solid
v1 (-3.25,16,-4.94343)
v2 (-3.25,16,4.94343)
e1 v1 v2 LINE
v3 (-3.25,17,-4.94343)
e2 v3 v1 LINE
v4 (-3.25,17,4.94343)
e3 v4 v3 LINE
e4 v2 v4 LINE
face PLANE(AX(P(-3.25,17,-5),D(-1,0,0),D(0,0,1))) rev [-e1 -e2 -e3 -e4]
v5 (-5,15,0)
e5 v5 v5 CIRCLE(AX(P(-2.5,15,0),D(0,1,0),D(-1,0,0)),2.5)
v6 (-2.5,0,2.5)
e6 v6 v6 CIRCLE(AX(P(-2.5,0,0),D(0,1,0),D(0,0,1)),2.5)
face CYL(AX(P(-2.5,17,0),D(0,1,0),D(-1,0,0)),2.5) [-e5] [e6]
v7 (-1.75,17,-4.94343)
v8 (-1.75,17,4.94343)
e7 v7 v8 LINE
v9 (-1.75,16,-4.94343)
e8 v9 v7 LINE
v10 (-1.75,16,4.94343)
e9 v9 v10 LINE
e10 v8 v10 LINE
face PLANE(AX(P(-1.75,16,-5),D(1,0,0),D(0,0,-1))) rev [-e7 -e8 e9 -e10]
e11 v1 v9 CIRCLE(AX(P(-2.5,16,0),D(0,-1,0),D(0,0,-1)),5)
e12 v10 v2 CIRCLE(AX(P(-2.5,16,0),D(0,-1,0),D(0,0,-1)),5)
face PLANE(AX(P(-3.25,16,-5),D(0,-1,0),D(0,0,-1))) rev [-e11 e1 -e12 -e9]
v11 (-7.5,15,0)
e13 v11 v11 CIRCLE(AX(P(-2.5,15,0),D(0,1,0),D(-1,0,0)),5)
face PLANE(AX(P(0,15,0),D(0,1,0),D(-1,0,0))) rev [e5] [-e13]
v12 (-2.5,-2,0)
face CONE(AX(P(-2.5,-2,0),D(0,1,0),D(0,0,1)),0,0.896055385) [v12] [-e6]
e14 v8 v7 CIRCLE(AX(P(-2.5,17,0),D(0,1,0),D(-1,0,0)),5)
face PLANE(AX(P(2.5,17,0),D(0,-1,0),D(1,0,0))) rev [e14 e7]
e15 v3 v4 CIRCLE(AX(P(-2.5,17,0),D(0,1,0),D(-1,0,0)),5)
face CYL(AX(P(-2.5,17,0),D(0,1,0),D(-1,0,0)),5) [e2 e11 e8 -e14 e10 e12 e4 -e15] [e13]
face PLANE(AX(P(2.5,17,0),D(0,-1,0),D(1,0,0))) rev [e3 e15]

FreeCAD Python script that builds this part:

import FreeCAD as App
import Part
import Sketcher
from FreeCAD import Vector
Q = App.Units.Quantity

doc = App.newDocument("Part")
body = doc.addObject("PartDesign::Body", "Body")

# Sketch on XY plane
sketch1 = body.newObject("Sketcher::SketchObject", "Sketch")
sketch1.AttachmentSupport = (doc.getObject("XY_Plane"), [""])
sketch1.MapMode = "FlatFace"
sketch1.addGeometry(Part.LineSegment(Vector(0, 0, 0), Vector(0, 15, 0)), False)
sketch1.addGeometry(Part.LineSegment(Vector(0, 15, 0), Vector(2.5, 15, 0)), False)
sketch1.addGeometry(Part.LineSegment(Vector(2.5, 15, 0), Vector(2.5, 17, 0)), False)
sketch1.addGeometry(Part.LineSegment(Vector(2.5, 17, 0), Vector(-2.5, 17, 0)), False)
sketch1.addGeometry(Part.LineSegment(Vector(-2.5, 17, 0), Vector(-2.5, 0, 0)), False)
sketch1.addGeometry(Part.LineSegment(Vector(-2.5, 0, 0), Vector(0, 0, 0)), False)
sketch1.addGeometry(Part.LineSegment(Vector(-2.5, 17, 0), Vector(-2.5, 0, 0)), True)  # axis
sketch1.addConstraint(Sketcher.Constraint("Coincident", 0, 2, 1, 1))
sketch1.addConstraint(Sketcher.Constraint("Coincident", 1, 2, 2, 1))
sketch1.addConstraint(Sketcher.Constraint("Coincident", 2, 2, 3, 1))
sketch1.addConstraint(Sketcher.Constraint("Coincident", 3, 2, 4, 1))
sketch1.addConstraint(Sketcher.Constraint("Coincident", 4, 2, 5, 1))
sketch1.addConstraint(Sketcher.Constraint("Coincident", 5, 2, 0, 1))
sketch1.addConstraint(Sketcher.Constraint("Vertical", 0))
sketch1.addConstraint(Sketcher.Constraint("Horizontal", 1))
sketch1.addConstraint(Sketcher.Constraint("Vertical", 2))
sketch1.addConstraint(Sketcher.Constraint("Horizontal", 3))
sketch1.addConstraint(Sketcher.Constraint("Vertical", 4))
sketch1.addConstraint(Sketcher.Constraint("Horizontal", 5))
sketch1.addConstraint(Sketcher.Constraint("Vertical", 6))
sketch1.addConstraint(Sketcher.Constraint("Coincident", 5, 2, -1, 1))
sketch1.addConstraint(Sketcher.Constraint("Coincident", 6, 1, 3, 2))
sketch1.addConstraint(Sketcher.Constraint("PointOnObject", 6, 2, -1))
sketch1.addConstraint(Sketcher.Constraint("Equal", 1, 5))
sketch1.addConstraint(Sketcher.Constraint("DistanceX", 3, 2, 3, 1, Q("5 mm")))
sketch1.addConstraint(Sketcher.Constraint("DistanceY", 0, 1, 0, 2, Q("15 mm")))
sketch1.addConstraint(Sketcher.Constraint("DistanceY", 2, 1, 2, 2, Q("2 mm")))
revolution = body.newObject("PartDesign::Revolution", "Revolution")
revolution.Profile = sketch1
revolution.ReferenceAxis = (sketch1, ["Axis0"])
revolution.Angle = 360

# Sketch on XY plane
sketch2 = body.newObject("Sketcher::SketchObject", "Sketch001")
sketch2.AttachmentSupport = (doc.getObject("XY_Plane"), [""])
sketch2.MapMode = "FlatFace"
sketch2.addGeometry(Part.LineSegment(Vector(-3.2, 17, 0), Vector(-3.2, 16, 0)), False)
sketch2.addGeometry(Part.LineSegment(Vector(-3.2, 16, 0), Vector(-1.8, 16, 0)), False)
sketch2.addGeometry(Part.LineSegment(Vector(-1.8, 16, 0), Vector(-1.8, 17, 0)), False)
sketch2.addGeometry(Part.LineSegment(Vector(-1.8, 17, 0), Vector(-3.2, 17, 0)), False)
sketch2.addConstraint(Sketcher.Constraint("Coincident", 0, 2, 1, 1))
sketch2.addConstraint(Sketcher.Constraint("Coincident", 1, 2, 2, 1))
sketch2.addConstraint(Sketcher.Constraint("Coincident", 2, 2, 3, 1))
sketch2.addConstraint(Sketcher.Constraint("Coincident", 3, 2, 0, 1))
sketch2.addConstraint(Sketcher.Constraint("Vertical", 0))
sketch2.addConstraint(Sketcher.Constraint("Horizontal", 1))
sketch2.addConstraint(Sketcher.Constraint("Vertical", 2))
sketch2.addConstraint(Sketcher.Constraint("Horizontal", 3))
sketch2.addConstraint(Sketcher.Constraint("DistanceY", 0, 2, 0, 1, Q("1 mm")))
sketch2.addConstraint(Sketcher.Constraint("DistanceX", 1, 1, 1, 2, Q("1.5 mm")))
sketch2.addConstraint(Sketcher.Constraint("DistanceY", -1, 1, 0, 2, Q("16 mm")))
sketch2.addConstraint(Sketcher.Constraint("DistanceX", 0, 2, -1, 1, Q("3.25 mm")))
pocket1 = body.newObject("PartDesign::Pocket", "Pocket")
pocket1.Profile = sketch2
pocket1.Type = "ThroughAll"
pocket1.Midplane = True

# Sketch on XY plane
sketch3 = body.newObject("Sketcher::SketchObject", "Sketch002")
sketch3.AttachmentSupport = (doc.getObject("XY_Plane"), [""])
sketch3.MapMode = "FlatFace"
sketch3.addGeometry(Part.LineSegment(Vector(-2.5, 0, 0), Vector(-2.5, -2, 0)), False)
sketch3.addGeometry(Part.LineSegment(Vector(-2.5, -2, 0), Vector(0, 0, 0)), False)
sketch3.addGeometry(Part.LineSegment(Vector(0, 0, 0), Vector(-2.5, 0, 0)), False)
sketch3.addGeometry(Part.LineSegment(Vector(-2.5, 0, 0), Vector(-2.5, -2, 0)), True)  # axis
sketch3.addConstraint(Sketcher.Constraint("Coincident", 0, 2, 1, 1))
sketch3.addConstraint(Sketcher.Constraint("Coincident", 1, 2, 2, 1))
sketch3.addConstraint(Sketcher.Constraint("Coincident", 2, 2, 0, 1))
sketch3.addConstraint(Sketcher.Constraint("Vertical", 0))
sketch3.addConstraint(Sketcher.Constraint("Horizontal", 2))
sketch3.addConstraint(Sketcher.Constraint("Vertical", 3))
sketch3.addConstraint(Sketcher.Constraint("Coincident", 1, 2, -1, 1))
sketch3.addConstraint(Sketcher.Constraint("Coincident", 3, 1, 2, 2))
sketch3.addConstraint(Sketcher.Constraint("Equal", 0, 3))
sketch3.addConstraint(Sketcher.Constraint("DistanceY", 0, 2, 0, 1, Q("2 mm")))
sketch3.addConstraint(Sketcher.Constraint("DistanceX", 2, 2, 2, 1, Q("2.5 mm")))
revolution2 = body.newObject("PartDesign::Revolution", "Revolution001")
revolution2.Profile = sketch3
revolution2.ReferenceAxis = (sketch3, ["Axis0"])
revolution2.Angle = 360

doc.recompute()
